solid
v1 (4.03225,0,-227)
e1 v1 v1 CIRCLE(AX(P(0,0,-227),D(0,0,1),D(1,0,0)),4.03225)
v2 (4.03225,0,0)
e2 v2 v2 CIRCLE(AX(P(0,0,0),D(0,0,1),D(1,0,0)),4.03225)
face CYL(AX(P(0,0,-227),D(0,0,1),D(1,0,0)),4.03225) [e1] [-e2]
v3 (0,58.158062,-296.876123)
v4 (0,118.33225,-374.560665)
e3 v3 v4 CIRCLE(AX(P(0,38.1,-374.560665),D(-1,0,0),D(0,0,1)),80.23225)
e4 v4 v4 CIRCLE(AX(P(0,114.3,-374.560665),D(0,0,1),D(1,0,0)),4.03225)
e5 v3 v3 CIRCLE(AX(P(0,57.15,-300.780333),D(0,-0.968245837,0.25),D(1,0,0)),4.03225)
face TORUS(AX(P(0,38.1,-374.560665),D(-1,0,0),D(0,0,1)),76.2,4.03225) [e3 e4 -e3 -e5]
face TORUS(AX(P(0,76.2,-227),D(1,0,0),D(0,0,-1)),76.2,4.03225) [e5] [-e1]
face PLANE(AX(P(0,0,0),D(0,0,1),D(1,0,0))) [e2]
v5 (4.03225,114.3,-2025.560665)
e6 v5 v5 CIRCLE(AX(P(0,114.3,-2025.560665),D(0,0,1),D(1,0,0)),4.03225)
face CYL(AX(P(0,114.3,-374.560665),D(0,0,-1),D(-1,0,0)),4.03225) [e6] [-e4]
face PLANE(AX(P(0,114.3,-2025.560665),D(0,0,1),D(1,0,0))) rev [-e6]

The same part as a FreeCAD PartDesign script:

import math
import FreeCAD as App
import Part
import Sketcher
Q = App.Units.Quantity

doc = App.newDocument("Part")
params = doc.addObject("Spreadsheet::Sheet", "Params")
for row, (alias, value) in enumerate([
    ("sketch2_radius", "3 in"),
    ("sketch2_height", "65 in"),
], start=1):
    params.set(f"A{row}", alias)
    params.set(f"B{row}", "=" + value)
    params.setAlias(f"B{row}", alias)

body = doc.addObject("PartDesign::Body", "Body")

# Sketch on XY plane
sketch1 = doc.addObject("Sketcher::SketchObject", "Sketch")
body.addObject(sketch1)
sketch1.AttachmentSupport = (doc.XY_Plane, [""])
sketch1.MapMode = "FlatFace"
sketch1.addGeometry(Part.Circle(App.Vector(0, 0, 0), App.Vector(0, 0, 1), 4), False)
sketch1.addConstraint([
    Sketcher.Constraint("Coincident", 0, 3, -1, 1),
    Sketcher.Constraint("Diameter", 0, Q("0.3175 in")),
])

# Sketch on YZ plane
sketch2 = doc.addObject("Sketcher::SketchObject", "Sketch001")
body.addObject(sketch2)
sketch2.AttachmentSupport = (doc.YZ_Plane, [""])
sketch2.MapMode = "FlatFace"
sketch2.addGeometry([
    Part.LineSegment(App.Vector(0, 0, 0), App.Vector(0, -227, 0)),
    Part.ArcOfCircle(Part.Circle(App.Vector(76, -227, 0), App.Vector(0, 0, 1), 76), math.radians(180), math.radians(256)),
    Part.ArcOfCircle(Part.Circle(App.Vector(38, -375, 0), App.Vector(0, 0, 1), 76), math.radians(0), math.radians(76)),
    Part.LineSegment(App.Vector(114, -375, 0), App.Vector(114, -2026, 0)),
], False)
sketch2.addConstraint([
    Sketcher.Constraint("Tangent", 0, 2, 1, 1),
    Sketcher.Constraint("Tangent", 1, 2, 2, 2),
    Sketcher.Constraint("Tangent", 2, 1, 3, 1),
    Sketcher.Constraint("Vertical", 0),
    Sketcher.Constraint("Vertical", 3),
    Sketcher.Constraint("Coincident", 0, 1, -1, 1),
    Sketcher.Constraint("Equal", 1, 2),
    Sketcher.Constraint("Radius", 1, Q("3 in")),
    Sketcher.Constraint("DistanceY", 3, 2, 3, 1, Q("65 in")),
    Sketcher.Constraint("DistanceX", -1, 1, 2, 3, Q("1.5 in")),
    Sketcher.Constraint("DistanceY", 0, 2, 0, 1, 227.0),
])
sketch2.setExpression("Constraints[7]", "Params.sketch2_radius")
sketch2.setExpression("Constraints[8]", "Params.sketch2_height")
doc.recompute()

additivepipe = doc.addObject("PartDesign::AdditivePipe", "AdditivePipe")
body.addObject(additivepipe)
additivepipe.Profile = sketch1
additivepipe.Spine = (sketch2, ["Edge1", "Edge2", "Edge3", "Edge4"])

doc.recompute()
